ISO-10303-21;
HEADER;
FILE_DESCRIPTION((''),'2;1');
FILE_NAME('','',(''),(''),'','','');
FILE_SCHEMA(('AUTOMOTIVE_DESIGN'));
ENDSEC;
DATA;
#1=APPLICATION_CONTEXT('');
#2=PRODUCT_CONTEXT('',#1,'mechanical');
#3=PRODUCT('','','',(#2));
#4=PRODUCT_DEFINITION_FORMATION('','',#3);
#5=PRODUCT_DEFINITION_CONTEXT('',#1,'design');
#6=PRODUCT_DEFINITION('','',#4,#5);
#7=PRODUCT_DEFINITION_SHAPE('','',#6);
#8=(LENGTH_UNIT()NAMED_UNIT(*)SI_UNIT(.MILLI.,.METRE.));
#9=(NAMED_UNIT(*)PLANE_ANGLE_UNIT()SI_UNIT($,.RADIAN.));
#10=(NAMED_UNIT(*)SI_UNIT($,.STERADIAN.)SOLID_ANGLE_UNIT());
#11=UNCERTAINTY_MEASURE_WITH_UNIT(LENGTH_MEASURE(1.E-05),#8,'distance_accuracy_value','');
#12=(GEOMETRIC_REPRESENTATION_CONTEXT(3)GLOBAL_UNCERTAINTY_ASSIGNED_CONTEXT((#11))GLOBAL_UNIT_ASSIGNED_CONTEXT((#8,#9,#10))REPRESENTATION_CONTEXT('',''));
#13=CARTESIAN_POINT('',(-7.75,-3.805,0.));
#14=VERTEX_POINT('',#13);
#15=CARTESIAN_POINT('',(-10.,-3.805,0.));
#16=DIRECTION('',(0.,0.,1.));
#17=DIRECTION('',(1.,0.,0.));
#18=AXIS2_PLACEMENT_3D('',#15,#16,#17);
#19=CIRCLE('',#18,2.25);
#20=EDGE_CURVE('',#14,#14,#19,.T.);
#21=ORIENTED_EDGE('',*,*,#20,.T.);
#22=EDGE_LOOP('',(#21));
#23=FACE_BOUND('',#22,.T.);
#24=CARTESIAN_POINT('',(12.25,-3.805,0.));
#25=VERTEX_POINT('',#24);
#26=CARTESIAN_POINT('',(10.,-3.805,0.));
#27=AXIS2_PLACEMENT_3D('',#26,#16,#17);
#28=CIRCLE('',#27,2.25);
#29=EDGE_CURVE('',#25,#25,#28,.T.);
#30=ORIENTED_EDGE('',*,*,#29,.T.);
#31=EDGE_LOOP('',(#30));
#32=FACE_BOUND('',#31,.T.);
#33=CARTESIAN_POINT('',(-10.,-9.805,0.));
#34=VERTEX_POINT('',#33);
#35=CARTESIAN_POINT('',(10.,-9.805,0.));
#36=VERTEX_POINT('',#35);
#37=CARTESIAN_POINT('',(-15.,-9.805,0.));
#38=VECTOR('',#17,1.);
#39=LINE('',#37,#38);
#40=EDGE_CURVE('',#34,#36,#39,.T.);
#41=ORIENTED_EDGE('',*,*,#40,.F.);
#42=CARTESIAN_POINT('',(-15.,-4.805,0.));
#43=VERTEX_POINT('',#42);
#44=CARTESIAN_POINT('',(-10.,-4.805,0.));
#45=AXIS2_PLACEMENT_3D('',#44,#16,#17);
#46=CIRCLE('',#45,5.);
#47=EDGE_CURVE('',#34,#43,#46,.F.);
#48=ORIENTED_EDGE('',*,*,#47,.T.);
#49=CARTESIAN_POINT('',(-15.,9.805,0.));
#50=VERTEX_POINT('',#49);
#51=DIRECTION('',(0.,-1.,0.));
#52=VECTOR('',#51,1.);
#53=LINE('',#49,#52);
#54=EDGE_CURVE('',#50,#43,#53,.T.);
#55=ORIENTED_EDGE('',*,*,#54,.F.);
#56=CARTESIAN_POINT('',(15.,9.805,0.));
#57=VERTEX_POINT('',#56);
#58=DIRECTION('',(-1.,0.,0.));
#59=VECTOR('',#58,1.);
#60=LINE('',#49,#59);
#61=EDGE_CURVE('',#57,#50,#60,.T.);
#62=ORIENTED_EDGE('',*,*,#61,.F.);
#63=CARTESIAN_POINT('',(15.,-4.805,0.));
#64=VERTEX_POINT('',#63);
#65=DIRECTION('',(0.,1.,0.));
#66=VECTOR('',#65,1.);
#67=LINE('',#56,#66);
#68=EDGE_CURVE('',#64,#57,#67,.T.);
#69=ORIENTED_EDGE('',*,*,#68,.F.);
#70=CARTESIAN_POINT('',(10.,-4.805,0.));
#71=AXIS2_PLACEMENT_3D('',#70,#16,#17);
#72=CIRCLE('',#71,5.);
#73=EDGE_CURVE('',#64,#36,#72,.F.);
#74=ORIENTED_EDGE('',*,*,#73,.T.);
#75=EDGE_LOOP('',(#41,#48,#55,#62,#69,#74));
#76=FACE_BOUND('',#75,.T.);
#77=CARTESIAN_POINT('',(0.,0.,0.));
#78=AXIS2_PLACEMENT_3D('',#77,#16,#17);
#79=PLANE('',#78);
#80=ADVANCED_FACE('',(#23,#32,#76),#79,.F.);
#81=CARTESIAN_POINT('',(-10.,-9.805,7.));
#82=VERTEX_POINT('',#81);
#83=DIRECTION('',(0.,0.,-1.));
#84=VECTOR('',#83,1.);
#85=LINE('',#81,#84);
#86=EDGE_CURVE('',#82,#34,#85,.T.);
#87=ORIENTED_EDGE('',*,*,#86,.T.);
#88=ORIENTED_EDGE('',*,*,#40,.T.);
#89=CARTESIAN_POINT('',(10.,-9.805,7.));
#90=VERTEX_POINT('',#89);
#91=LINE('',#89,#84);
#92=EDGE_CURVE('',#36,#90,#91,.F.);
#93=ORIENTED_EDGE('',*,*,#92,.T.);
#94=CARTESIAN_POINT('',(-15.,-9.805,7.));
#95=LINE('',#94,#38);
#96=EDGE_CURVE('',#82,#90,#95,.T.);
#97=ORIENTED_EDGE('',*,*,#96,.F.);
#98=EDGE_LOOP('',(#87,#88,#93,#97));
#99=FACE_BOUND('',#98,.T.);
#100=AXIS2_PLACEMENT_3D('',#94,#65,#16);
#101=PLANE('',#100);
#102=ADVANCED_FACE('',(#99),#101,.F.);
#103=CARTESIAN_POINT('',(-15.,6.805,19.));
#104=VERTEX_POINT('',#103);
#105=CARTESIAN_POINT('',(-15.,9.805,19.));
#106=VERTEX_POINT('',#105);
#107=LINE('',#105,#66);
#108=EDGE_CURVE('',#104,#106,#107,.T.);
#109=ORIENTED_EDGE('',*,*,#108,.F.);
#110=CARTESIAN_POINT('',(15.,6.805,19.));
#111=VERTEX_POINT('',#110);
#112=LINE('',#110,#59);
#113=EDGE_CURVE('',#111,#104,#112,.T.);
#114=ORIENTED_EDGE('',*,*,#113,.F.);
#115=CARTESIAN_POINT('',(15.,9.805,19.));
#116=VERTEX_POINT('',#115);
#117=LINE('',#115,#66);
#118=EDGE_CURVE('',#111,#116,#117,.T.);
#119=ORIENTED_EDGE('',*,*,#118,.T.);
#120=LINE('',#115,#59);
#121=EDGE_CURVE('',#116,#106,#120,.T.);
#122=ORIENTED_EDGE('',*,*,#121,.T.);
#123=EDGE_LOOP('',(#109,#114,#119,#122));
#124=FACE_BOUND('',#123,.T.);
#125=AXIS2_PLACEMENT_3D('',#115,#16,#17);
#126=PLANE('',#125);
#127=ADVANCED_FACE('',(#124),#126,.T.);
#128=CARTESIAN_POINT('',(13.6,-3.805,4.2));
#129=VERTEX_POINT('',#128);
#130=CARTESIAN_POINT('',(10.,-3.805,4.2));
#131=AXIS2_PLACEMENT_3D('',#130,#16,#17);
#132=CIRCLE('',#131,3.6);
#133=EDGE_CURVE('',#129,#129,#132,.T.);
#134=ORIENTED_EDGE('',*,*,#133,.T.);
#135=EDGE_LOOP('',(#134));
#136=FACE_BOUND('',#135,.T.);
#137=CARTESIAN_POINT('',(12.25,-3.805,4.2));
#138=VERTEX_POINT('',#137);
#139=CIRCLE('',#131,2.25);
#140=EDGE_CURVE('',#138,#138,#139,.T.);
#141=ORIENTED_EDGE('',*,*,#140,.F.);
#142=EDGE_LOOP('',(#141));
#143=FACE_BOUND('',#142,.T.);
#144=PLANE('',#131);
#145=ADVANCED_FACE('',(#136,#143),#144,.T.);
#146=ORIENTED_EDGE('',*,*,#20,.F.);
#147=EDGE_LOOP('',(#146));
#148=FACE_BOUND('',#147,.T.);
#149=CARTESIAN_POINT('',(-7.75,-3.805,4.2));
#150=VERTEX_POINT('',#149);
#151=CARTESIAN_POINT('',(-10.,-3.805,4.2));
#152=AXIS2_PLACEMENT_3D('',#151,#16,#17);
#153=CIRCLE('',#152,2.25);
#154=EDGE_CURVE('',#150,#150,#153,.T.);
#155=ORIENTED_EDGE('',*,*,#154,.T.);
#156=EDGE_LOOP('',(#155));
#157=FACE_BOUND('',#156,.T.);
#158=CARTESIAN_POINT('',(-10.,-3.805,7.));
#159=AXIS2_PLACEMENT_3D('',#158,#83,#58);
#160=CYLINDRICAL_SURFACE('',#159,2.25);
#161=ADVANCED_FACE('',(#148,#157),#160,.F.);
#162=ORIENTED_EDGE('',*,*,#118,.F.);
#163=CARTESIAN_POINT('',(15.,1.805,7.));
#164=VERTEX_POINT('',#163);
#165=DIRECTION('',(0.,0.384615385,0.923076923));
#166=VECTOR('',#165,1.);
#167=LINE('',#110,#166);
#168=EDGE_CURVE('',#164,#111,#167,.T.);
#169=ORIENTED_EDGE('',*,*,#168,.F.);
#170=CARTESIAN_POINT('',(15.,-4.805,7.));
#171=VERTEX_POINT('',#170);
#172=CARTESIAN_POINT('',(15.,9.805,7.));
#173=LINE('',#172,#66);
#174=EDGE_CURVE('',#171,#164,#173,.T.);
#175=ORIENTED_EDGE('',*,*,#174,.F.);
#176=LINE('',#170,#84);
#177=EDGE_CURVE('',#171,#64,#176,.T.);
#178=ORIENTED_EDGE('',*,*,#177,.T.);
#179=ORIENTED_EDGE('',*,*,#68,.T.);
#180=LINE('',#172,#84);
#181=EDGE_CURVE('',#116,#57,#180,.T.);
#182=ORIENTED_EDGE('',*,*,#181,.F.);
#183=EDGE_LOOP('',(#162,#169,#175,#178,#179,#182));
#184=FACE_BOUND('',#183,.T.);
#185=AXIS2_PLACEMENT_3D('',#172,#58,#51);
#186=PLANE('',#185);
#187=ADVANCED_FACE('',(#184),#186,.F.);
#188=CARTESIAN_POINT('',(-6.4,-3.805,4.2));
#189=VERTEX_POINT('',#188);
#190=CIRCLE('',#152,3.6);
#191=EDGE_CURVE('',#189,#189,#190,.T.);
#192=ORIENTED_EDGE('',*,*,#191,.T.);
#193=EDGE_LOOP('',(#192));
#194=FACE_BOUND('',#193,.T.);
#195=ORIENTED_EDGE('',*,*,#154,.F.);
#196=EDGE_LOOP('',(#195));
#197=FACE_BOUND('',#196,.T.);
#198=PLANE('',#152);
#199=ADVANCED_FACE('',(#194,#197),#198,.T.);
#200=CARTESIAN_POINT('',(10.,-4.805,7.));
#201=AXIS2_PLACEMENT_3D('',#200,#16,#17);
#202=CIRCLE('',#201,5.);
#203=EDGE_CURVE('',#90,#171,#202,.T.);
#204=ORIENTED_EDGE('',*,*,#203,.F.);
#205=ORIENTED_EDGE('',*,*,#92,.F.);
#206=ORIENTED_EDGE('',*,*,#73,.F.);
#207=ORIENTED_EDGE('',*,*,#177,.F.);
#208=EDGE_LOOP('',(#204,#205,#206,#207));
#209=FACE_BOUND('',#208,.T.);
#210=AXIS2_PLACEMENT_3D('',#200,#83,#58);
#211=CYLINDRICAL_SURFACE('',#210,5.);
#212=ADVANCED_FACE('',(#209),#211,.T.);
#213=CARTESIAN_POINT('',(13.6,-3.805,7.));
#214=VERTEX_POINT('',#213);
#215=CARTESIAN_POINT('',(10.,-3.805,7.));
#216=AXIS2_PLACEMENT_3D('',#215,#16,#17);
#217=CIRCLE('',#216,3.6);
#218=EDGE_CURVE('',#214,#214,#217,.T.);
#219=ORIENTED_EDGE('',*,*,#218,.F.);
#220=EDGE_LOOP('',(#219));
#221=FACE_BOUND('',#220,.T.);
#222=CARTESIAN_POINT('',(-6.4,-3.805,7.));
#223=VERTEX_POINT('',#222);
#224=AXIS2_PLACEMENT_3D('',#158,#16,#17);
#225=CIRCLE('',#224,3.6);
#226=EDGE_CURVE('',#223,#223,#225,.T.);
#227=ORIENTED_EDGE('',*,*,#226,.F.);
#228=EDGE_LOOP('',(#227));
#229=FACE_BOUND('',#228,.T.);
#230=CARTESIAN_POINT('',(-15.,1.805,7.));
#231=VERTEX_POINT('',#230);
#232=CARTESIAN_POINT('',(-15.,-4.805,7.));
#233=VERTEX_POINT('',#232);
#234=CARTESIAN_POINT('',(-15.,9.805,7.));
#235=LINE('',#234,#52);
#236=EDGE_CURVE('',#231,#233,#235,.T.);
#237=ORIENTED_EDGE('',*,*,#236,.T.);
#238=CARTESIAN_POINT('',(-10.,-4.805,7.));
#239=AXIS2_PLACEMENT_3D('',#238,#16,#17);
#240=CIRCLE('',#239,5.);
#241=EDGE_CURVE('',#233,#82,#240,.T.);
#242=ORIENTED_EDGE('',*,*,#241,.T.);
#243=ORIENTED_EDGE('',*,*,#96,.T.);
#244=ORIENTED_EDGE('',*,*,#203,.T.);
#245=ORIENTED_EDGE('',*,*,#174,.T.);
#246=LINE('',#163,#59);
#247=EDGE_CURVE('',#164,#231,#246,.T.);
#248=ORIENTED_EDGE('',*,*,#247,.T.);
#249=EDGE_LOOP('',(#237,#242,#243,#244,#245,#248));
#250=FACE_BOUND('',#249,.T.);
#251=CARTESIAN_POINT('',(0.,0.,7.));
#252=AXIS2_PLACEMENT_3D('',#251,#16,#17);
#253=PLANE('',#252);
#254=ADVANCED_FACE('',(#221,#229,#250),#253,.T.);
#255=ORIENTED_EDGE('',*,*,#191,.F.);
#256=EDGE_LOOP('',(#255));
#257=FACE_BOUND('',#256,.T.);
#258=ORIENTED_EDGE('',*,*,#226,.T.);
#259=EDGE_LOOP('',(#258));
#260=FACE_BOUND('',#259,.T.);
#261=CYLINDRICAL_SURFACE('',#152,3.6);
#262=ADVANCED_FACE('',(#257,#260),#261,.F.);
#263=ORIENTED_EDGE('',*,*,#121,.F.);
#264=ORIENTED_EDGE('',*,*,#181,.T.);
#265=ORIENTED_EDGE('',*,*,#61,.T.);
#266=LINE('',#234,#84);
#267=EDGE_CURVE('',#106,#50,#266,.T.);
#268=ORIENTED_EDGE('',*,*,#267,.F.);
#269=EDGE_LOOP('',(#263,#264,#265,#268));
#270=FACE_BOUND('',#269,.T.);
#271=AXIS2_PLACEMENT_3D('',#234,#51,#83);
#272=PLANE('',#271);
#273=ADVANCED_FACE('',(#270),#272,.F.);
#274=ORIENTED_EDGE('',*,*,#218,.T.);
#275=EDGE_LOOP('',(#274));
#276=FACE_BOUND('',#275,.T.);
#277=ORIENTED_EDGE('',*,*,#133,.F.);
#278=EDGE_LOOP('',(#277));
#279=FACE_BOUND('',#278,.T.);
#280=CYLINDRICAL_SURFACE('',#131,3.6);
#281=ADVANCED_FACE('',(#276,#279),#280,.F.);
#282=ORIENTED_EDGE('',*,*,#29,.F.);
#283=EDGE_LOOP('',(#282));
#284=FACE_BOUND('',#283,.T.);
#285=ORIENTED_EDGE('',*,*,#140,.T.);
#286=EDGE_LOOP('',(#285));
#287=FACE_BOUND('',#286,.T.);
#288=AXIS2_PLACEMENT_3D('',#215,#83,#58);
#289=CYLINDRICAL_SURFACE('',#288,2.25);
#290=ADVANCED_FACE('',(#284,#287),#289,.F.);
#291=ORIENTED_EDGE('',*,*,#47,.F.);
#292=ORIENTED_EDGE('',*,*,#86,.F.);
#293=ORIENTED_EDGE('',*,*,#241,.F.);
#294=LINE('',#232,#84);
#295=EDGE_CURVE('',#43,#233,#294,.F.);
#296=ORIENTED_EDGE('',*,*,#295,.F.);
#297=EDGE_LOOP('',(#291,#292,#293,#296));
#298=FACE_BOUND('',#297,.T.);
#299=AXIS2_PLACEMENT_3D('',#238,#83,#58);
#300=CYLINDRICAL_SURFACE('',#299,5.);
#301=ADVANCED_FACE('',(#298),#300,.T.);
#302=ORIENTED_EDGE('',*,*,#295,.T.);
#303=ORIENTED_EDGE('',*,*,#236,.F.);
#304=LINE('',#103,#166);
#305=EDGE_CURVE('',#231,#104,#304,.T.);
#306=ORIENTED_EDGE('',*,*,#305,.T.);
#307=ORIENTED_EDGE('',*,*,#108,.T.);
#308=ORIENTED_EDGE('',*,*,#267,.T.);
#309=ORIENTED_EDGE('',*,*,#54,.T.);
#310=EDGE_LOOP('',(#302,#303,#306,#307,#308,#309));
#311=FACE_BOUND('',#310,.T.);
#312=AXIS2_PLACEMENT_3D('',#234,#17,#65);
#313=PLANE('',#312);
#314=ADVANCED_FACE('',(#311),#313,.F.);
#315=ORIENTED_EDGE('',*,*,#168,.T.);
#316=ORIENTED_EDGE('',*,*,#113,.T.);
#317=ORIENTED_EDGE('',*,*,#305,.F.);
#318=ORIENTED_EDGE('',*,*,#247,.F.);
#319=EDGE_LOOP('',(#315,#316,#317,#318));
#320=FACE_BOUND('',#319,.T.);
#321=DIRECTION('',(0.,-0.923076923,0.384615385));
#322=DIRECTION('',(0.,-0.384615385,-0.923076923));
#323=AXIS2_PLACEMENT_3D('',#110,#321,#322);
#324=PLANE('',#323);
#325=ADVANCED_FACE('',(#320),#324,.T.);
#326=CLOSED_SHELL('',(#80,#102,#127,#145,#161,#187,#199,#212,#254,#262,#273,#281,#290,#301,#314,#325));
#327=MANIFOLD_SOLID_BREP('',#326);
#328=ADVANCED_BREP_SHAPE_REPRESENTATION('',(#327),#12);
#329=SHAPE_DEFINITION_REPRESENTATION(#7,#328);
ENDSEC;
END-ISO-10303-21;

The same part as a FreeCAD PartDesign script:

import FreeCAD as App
import Part
import Sketcher

V = App.Vector
Q = App.Units.Quantity


def edges_at(feature, points):
    """Names of the edges that pass closest to the given points."""
    edges = feature.Shape.Edges
    near = lambda p: min(range(len(edges)), key=lambda i: edges[i].distToShape(Part.Vertex(*p))[0])
    return sorted({f"Edge{near(p) + 1}" for p in points})

doc = App.newDocument("Part")
body = doc.addObject("PartDesign::Body", "Body")

sketch1 = body.newObject("Sketcher::SketchObject", "Sketch")
sketch1.AttachmentSupport = (doc.getObject("XY_Plane"), [""])
sketch1.MapMode = "FlatFace"
sketch1.addGeometry(Part.LineSegment(V(-15, 9.8, 0), V(-15, -9.8, 0)), False)
sketch1.addGeometry(Part.LineSegment(V(-15, -9.8, 0), V(15, -9.8, 0)), False)
sketch1.addGeometry(Part.LineSegment(V(15, -9.8, 0), V(15, 9.8, 0)), False)
sketch1.addGeometry(Part.LineSegment(V(15, 9.8, 0), V(-15, 9.8, 0)), False)
sketch1.addGeometry(Part.Circle(V(-10, -3.8, 0), V(0, 0, 1), 2.2), False)
sketch1.addGeometry(Part.Circle(V(10, -3.8, 0), V(0, 0, 1), 2.2), False)
sketch1.addConstraint(Sketcher.Constraint("Coincident", 0, 2, 1, 1))
sketch1.addConstraint(Sketcher.Constraint("Coincident", 1, 2, 2, 1))
sketch1.addConstraint(Sketcher.Constraint("Coincident", 2, 2, 3, 1))
sketch1.addConstraint(Sketcher.Constraint("Coincident", 3, 2, 0, 1))
sketch1.addConstraint(Sketcher.Constraint("Vertical", 0))
sketch1.addConstraint(Sketcher.Constraint("Horizontal", 1))
sketch1.addConstraint(Sketcher.Constraint("Vertical", 2))
sketch1.addConstraint(Sketcher.Constraint("Horizontal", 3))
sketch1.addConstraint(Sketcher.Constraint("Equal", 4, 5))
sketch1.addConstraint(Sketcher.Constraint("Symmetric", 0, 2, 2, 2, -1, 1))
sketch1.addConstraint(Sketcher.Constraint("Symmetric", 4, 3, 5, 3, -2))
sketch1.addConstraint(Sketcher.Constraint("Diameter", 4, Q("4.5 mm")))
sketch1.addConstraint(Sketcher.Constraint("DistanceX", 1, 1, 1, 2, Q("30 mm")))
sketch1.addConstraint(Sketcher.Constraint("DistanceX", 4, 3, -1, 1, Q("10 mm")))
sketch1.addConstraint(Sketcher.Constraint("DistanceY", 0, 2, 4, 3, Q("6 mm")))
sketch1.addConstraint(Sketcher.Constraint("DistanceY", 0, 2, 0, 1, Q("19.61 mm")))
pad1 = body.newObject("PartDesign::Pad", "Pad")
pad1.Profile = sketch1
pad1.Length = 7

sketch2 = body.newObject("Sketcher::SketchObject", "Sketch001")
sketch2.AttachmentSupport = (doc.getObject("XY_Plane"), [""])
sketch2.MapMode = "FlatFace"
sketch2.AttachmentOffset = App.Placement(V(0, 0, 7), App.Rotation())
sketch2.addGeometry(Part.Circle(V(-10, -3.8, 0), V(0, 0, 1), 3.6), False)
sketch2.addGeometry(Part.Circle(V(10, -3.8, 0), V(0, 0, 1), 3.6), False)
sketch2.addConstraint(Sketcher.Constraint("Equal", 0, 1))
sketch2.addConstraint(Sketcher.Constraint("Symmetric", 0, 3, 1, 3, -2))
sketch2.addConstraint(Sketcher.Constraint("Diameter", 0, Q("7.2 mm")))
sketch2.addConstraint(Sketcher.Constraint("DistanceX", 0, 3, -1, 1, Q("10 mm")))
sketch2.addConstraint(Sketcher.Constraint("DistanceY", 0, 3, -1, 1, Q("3.805 mm")))
pocket1 = body.newObject("PartDesign::Pocket", "Pocket")
pocket1.Profile = sketch2
pocket1.Length = 2.8
doc.recompute()

fillet = body.newObject("PartDesign::Fillet", "Fillet")
fillet.Base = (pocket1, edges_at(pocket1, [(15, -9.805, 3.5), (-15, -9.805, 3.5)]))
fillet.Radius = 5

sketch3 = body.newObject("Sketcher::SketchObject", "Sketch002")
sketch3.AttachmentSupport = (doc.getObject("YZ_Plane"), [""])
sketch3.MapMode = "FlatFace"
sketch3.AttachmentOffset = App.Placement(V(0, 0, -15), App.Rotation())
sketch3.addGeometry(Part.LineSegment(V(9.8, 7, 0), V(1.8, 7, 0)), False)
sketch3.addGeometry(Part.LineSegment(V(1.8, 7, 0), V(6.8, 19, 0)), False)
sketch3.addGeometry(Part.LineSegment(V(6.8, 19, 0), V(9.8, 19, 0)), False)
sketch3.addGeometry(Part.LineSegment(V(9.8, 19, 0), V(9.8, 7, 0)), False)
sketch3.addConstraint(Sketcher.Constraint("Coincident", 0, 2, 1, 1))
sketch3.addConstraint(Sketcher.Constraint("Coincident", 1, 2, 2, 1))
sketch3.addConstraint(Sketcher.Constraint("Coincident", 2, 2, 3, 1))
sketch3.addConstraint(Sketcher.Constraint("Coincident", 3, 2, 0, 1))
sketch3.addConstraint(Sketcher.Constraint("Horizontal", 0))
sketch3.addConstraint(Sketcher.Constraint("Horizontal", 2))
sketch3.addConstraint(Sketcher.Constraint("Vertical", 3))
sketch3.addConstraint(Sketcher.Constraint("DistanceX", 0, 2, 0, 1, Q("8 mm")))
sketch3.addConstraint(Sketcher.Constraint("DistanceX", 2, 1, 2, 2, Q("3 mm")))
sketch3.addConstraint(Sketcher.Constraint("DistanceY", 3, 2, 3, 1, Q("12 mm")))
sketch3.addConstraint(Sketcher.Constraint("DistanceY", -1, 1, 0, 2, Q("7 mm")))
sketch3.addConstraint(Sketcher.Constraint("DistanceX", -1, 1, 0, 2, Q("1.805 mm")))
pad2 = body.newObject("PartDesign::Pad", "Pad001")
pad2.Profile = sketch3
pad2.Length = 30

doc.recompute()
